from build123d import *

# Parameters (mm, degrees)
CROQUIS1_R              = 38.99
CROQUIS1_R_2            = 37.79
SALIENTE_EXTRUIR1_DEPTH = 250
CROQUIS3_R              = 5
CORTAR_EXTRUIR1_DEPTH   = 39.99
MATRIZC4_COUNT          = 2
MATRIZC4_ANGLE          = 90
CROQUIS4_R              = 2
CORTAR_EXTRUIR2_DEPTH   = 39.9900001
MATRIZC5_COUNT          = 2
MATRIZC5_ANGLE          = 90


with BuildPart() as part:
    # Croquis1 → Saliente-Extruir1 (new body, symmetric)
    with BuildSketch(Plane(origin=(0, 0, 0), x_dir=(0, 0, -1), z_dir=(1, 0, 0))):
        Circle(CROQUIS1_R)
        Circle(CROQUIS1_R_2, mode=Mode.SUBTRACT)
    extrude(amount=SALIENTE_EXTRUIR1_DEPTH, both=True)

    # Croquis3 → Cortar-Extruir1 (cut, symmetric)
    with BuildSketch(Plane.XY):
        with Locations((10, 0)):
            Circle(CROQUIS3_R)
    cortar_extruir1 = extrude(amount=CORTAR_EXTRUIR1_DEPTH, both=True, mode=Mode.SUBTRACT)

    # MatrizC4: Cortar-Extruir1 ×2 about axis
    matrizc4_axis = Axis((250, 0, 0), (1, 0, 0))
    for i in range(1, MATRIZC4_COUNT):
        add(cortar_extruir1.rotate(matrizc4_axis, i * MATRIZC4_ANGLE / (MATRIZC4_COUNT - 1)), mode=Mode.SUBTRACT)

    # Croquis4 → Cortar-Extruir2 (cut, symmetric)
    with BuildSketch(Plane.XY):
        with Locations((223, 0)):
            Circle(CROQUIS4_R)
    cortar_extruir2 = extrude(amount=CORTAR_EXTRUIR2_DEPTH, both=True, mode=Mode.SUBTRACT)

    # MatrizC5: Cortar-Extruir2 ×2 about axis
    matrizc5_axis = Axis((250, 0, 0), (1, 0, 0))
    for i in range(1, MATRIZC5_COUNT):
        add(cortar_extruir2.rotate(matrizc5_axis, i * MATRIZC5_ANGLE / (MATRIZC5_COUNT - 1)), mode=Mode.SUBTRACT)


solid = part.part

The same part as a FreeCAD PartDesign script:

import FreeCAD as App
import Part
import Sketcher

doc = App.newDocument("Part")
params = doc.addObject("Spreadsheet::Sheet", "Params")
for row, (alias, value) in enumerate([
    ("sketch1_diameter", "77.98 mm"),
    ("sketch1_diameter2", "75.58 mm"),
    ("pad1_length", "500 mm"),
    ("sketch2_diameter", "10 mm"),
    ("pocket1_length", "79.98 mm"),
    ("sketch3_diameter", "4 mm"),
    ("pocket2_length", "79.98 mm"),
], start=1):
    params.set(f"A{row}", alias)
    params.set(f"B{row}", "=" + value)
    params.setAlias(f"B{row}", alias)

body = doc.addObject("PartDesign::Body", "Body")

sketch1 = body.newObject("Sketcher::SketchObject", "Sketch")
sketch1.AttachmentSupport = (doc.getObject("YZ_Plane"), [""])
sketch1.MapMode = "FlatFace"
sketch1.addGeometry([
    Part.Circle(App.Vector(0, 0, 0), App.Vector(0, 0, 1), 39),
    Part.Circle(App.Vector(0, 0, 0), App.Vector(0, 0, 1), 38),
], False)
sketch1.addConstraint([
    Sketcher.Constraint("Coincident", 0, 3, -1, 1),
    Sketcher.Constraint("Coincident", 1, 3, -1, 1),
    Sketcher.Constraint("Diameter", 0, 77.98),
    Sketcher.Constraint("Diameter", 1, 75.58),
])
sketch1.setExpression("Constraints[2]", "Params.sketch1_diameter")
sketch1.setExpression("Constraints[3]", "Params.sketch1_diameter2")
pad1 = body.newObject("PartDesign::Pad", "Pad")
pad1.Profile = sketch1
pad1.setExpression("Length", "Params.pad1_length")
pad1.Midplane = True

sketch2 = body.newObject("Sketcher::SketchObject", "Sketch001")
sketch2.AttachmentSupport = (doc.getObject("XY_Plane"), [""])
sketch2.MapMode = "FlatFace"
sketch2.addGeometry(Part.Circle(App.Vector(10, 0, 0), App.Vector(0, 0, 1), 5), False)
sketch2.addConstraint([
    Sketcher.Constraint("PointOnObject", 0, 3, -1),
    Sketcher.Constraint("Diameter", 0, 10.0),
    Sketcher.Constraint("DistanceX", -1, 1, 0, 3, 10.0),
])
sketch2.setExpression("Constraints[1]", "Params.sketch2_diameter")
pocket1 = body.newObject("PartDesign::Pocket", "Pocket")
pocket1.Profile = sketch2
pocket1.setExpression("Length", "Params.pocket1_length")
pocket1.Midplane = True
doc.recompute()

polarpattern = body.newObject("PartDesign::PolarPattern", "PolarPattern")
polarpattern.Originals = [pocket1]
polarpattern.Axis = (doc.getObject("X_Axis"), [""])
polarpattern.Angle = 90
polarpattern.Occurrences = 2
body.Tip = polarpattern

sketch3 = body.newObject("Sketcher::SketchObject", "Sketch002")
sketch3.AttachmentSupport = (doc.getObject("XY_Plane"), [""])
sketch3.MapMode = "FlatFace"
sketch3.addGeometry(Part.Circle(App.Vector(223, 0, 0), App.Vector(0, 0, 1), 2), False)
sketch3.addConstraint([
    Sketcher.Constraint("PointOnObject", 0, 3, -1),
    Sketcher.Constraint("Diameter", 0, 4.0),
    Sketcher.Constraint("DistanceX", -1, 1, 0, 3, 223.0),
])
sketch3.setExpression("Constraints[1]", "Params.sketch3_diameter")
pocket2 = body.newObject("PartDesign::Pocket", "Pocket001")
pocket2.Profile = sketch3
pocket2.setExpression("Length", "Params.pocket2_length")
pocket2.Midplane = True
doc.recompute()

polarpattern2 = body.newObject("PartDesign::PolarPattern", "PolarPattern001")
polarpattern2.Originals = [pocket2]
polarpattern2.Axis = (doc.getObject("X_Axis"), [""])
polarpattern2.Angle = 90
polarpattern2.Occurrences = 2
body.Tip = polarpattern2

doc.recompute()
